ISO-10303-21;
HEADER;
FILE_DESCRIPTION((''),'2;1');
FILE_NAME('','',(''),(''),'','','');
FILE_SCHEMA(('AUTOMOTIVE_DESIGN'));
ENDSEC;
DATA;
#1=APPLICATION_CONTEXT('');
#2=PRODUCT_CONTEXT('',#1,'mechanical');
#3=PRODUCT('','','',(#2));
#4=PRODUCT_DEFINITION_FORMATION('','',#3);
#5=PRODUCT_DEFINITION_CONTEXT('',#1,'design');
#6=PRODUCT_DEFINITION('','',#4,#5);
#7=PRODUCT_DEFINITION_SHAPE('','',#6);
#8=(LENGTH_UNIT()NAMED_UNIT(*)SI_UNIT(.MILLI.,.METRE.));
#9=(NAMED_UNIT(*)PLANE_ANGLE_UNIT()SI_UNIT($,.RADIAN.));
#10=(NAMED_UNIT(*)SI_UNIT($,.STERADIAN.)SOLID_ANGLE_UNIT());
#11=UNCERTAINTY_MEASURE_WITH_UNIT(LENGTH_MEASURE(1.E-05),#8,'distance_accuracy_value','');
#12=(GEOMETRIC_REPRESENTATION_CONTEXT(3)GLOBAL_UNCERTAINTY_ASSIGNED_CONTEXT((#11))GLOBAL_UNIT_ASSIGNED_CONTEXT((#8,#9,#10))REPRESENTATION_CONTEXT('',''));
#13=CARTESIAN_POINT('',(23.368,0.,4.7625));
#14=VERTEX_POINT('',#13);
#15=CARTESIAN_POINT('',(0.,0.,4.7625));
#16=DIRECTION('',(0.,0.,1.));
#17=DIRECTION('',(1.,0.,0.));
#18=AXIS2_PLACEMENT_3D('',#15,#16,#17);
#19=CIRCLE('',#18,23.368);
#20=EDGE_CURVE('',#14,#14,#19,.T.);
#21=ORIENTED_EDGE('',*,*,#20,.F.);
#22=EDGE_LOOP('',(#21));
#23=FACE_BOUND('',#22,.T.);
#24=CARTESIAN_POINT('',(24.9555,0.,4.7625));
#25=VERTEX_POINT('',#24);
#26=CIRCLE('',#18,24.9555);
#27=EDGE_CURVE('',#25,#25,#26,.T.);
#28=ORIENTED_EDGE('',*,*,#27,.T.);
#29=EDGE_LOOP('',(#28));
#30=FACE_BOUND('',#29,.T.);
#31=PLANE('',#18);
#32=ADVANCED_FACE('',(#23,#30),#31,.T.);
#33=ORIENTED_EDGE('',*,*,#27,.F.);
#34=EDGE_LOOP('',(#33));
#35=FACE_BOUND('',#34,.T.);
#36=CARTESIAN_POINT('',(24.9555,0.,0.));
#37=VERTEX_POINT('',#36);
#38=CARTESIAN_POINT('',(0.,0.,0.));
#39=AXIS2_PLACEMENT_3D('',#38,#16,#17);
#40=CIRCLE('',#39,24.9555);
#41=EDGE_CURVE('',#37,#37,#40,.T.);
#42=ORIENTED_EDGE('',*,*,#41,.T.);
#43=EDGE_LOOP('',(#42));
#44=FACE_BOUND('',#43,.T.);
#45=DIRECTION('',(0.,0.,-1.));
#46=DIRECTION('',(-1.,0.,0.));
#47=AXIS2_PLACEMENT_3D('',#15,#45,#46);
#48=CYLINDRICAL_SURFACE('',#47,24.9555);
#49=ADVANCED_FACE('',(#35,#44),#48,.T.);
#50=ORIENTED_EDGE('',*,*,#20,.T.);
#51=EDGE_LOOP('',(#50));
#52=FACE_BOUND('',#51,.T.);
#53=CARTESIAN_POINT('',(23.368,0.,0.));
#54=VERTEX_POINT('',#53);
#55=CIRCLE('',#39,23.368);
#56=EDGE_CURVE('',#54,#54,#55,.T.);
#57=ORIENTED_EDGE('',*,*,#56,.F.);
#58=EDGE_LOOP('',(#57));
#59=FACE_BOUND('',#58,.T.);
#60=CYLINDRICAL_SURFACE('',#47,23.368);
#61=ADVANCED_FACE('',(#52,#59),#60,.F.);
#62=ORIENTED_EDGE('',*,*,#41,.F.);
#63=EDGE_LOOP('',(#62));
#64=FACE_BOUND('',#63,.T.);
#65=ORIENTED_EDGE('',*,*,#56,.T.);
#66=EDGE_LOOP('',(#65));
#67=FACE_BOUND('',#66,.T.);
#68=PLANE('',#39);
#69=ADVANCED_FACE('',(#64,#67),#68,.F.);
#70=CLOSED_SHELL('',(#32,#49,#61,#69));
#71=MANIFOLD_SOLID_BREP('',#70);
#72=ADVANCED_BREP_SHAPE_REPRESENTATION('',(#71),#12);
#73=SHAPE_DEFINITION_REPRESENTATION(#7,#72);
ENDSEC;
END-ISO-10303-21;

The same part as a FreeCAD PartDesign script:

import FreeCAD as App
import Part
import Sketcher
from FreeCAD import Vector
Q = App.Units.Quantity

doc = App.newDocument("Part")
params = doc.addObject("Spreadsheet::Sheet", "Params")
for row, (alias, value) in enumerate([
    ("sketch1_diameter", "1.84 in"),
    ("sketch1_diameter2", "1.965 in"),
    ("pad1_length", "0.1875 in"),
], start=1):
    params.set(f"A{row}", alias)
    params.set(f"B{row}", "=" + value)
    params.setAlias(f"B{row}", alias)

body = doc.addObject("PartDesign::Body", "Body")

sketch1 = doc.addObject("Sketcher::SketchObject", "Sketch")
body.addObject(sketch1)
sketch1.AttachmentSupport = (doc.XY_Plane, [""])
sketch1.MapMode = "FlatFace"
sketch1.addGeometry([
    Part.Circle(Vector(0, 0, 0), Vector(0, 0, 1), 25),
    Part.Circle(Vector(0, 0, 0), Vector(0, 0, 1), 23),
], False)
sketch1.addConstraint([
    Sketcher.Constraint("Coincident", 0, 3, -1, 1),
    Sketcher.Constraint("Coincident", 1, 3, -1, 1),
    Sketcher.Constraint("Diameter", 1, Q("1.84 in")),
    Sketcher.Constraint("Diameter", 0, Q("1.965 in")),
])
sketch1.setExpression("Constraints[2]", "Params.sketch1_diameter")
sketch1.setExpression("Constraints[3]", "Params.sketch1_diameter2")
pad1 = doc.addObject("PartDesign::Pad", "Pad")
body.addObject(pad1)
pad1.Profile = sketch1
pad1.setExpression("Length", "Params.pad1_length")

doc.recompute()
